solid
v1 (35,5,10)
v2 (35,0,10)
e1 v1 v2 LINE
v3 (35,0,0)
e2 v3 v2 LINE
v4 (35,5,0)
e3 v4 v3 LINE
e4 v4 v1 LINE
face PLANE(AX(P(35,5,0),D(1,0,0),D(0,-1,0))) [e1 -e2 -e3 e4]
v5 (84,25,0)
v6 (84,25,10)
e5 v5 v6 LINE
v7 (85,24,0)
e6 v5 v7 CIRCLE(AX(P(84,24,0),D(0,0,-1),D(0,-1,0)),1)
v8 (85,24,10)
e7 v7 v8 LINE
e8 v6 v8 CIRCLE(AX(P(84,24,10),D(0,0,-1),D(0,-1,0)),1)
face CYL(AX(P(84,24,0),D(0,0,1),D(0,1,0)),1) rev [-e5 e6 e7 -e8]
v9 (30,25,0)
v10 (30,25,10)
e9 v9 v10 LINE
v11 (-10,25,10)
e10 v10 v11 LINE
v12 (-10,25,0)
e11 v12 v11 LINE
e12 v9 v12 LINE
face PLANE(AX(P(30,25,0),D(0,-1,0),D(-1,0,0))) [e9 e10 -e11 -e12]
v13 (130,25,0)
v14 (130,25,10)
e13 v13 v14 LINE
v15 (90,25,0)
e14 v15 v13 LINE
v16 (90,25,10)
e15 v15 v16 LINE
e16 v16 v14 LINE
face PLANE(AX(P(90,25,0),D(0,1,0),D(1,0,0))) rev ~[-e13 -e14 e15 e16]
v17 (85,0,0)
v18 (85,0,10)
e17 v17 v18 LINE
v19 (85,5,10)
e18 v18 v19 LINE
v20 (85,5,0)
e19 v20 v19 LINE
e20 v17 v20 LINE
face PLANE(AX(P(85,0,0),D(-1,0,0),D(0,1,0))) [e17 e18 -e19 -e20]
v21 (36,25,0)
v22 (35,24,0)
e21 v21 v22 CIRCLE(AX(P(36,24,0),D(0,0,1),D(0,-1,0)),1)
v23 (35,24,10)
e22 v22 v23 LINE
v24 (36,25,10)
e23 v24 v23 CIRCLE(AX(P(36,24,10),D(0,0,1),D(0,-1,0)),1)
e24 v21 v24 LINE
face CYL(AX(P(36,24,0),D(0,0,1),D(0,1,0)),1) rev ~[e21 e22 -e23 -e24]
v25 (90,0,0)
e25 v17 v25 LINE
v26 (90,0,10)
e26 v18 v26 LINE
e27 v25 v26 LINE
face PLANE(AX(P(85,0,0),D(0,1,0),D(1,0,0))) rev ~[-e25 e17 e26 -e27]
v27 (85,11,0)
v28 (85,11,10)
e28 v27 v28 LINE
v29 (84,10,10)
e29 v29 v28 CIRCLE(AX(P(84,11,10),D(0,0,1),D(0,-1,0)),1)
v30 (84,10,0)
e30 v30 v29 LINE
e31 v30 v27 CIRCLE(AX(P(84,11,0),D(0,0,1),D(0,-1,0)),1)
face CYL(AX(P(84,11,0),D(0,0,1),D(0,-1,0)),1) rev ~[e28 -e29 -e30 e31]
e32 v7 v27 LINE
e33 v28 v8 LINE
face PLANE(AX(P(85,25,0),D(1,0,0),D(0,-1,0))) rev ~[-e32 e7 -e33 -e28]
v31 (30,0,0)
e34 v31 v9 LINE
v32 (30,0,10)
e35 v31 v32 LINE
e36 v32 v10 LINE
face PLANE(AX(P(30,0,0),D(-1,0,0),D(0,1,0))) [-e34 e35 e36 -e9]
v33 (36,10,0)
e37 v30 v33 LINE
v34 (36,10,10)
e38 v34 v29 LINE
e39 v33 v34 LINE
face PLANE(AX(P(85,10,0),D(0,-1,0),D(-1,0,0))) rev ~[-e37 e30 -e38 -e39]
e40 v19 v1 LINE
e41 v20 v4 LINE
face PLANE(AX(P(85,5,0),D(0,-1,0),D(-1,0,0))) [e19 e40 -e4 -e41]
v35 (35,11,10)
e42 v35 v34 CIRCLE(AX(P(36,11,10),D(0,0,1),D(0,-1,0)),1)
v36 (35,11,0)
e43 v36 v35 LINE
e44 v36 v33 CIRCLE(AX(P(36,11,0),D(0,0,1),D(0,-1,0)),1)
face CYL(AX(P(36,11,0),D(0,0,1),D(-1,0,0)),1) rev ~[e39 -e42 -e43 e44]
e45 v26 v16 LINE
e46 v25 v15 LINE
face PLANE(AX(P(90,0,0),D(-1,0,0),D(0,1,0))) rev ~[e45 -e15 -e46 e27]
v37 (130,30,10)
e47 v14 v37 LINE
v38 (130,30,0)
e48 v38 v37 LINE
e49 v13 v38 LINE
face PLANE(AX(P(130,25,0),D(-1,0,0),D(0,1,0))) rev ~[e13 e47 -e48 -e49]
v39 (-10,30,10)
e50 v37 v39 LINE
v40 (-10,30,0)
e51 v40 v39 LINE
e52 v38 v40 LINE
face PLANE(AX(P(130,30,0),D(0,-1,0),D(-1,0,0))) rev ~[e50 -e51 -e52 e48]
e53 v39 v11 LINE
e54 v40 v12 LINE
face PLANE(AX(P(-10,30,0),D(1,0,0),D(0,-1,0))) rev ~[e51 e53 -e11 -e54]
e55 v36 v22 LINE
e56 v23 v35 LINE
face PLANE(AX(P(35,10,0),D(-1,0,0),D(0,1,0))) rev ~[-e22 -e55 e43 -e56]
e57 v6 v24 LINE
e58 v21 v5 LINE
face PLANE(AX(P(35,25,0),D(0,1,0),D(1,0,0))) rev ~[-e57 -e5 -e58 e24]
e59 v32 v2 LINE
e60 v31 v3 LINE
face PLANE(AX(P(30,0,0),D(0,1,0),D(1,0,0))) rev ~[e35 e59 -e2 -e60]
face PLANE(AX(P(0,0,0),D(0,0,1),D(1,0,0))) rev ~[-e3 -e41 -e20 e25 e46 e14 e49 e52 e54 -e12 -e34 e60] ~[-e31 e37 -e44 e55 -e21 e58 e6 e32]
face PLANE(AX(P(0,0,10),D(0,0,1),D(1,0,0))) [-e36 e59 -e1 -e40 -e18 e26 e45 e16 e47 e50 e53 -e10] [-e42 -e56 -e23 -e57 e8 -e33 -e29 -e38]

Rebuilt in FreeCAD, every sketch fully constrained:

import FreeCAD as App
import Part
import Sketcher
Q = App.Units.Quantity


def edges_at(feature, points):
    """Names of the edges that pass closest to the given points."""
    edges = feature.Shape.Edges
    near = lambda p: min(range(len(edges)), key=lambda i: edges[i].distToShape(Part.Vertex(*p))[0])
    return sorted({f"Edge{near(p) + 1}" for p in points})


def add_polygon(sketch, points):
    """Adds a closed chain of lines whose ends are joined by coincident constraints."""
    first, n = sketch.GeometryCount, len(points)
    for a, b in zip(points, points[1:] + points[:1]):
        sketch.addGeometry(Part.LineSegment(App.Vector(*a, 0), App.Vector(*b, 0)), False)
    for i in range(n):
        sketch.addConstraint(Sketcher.Constraint("Coincident", first + i, 2, first + (i + 1) % n, 1))

doc = App.newDocument("Part")
body = doc.addObject("PartDesign::Body", "Body")

sketch1 = body.newObject("Sketcher::SketchObject", "Sketch")
sketch1.AttachmentSupport = (doc.getObject("XY_Plane"), [""])
sketch1.MapMode = "FlatFace"
add_polygon(sketch1, [(90, 25), (130, 25), (130, 30), (-10, 30), (-10, 25), (30, 25), (30, 0), (35, 0), (35, 5), (85, 5), (85, 0), (90, 0)])
sketch1.addConstraint([
    Sketcher.Constraint("Horizontal", 0),
    Sketcher.Constraint("Vertical", 1),
    Sketcher.Constraint("Horizontal", 2),
    Sketcher.Constraint("Vertical", 3),
    Sketcher.Constraint("Horizontal", 4),
    Sketcher.Constraint("Vertical", 5),
    Sketcher.Constraint("Horizontal", 6),
    Sketcher.Constraint("Vertical", 7),
    Sketcher.Constraint("Horizontal", 8),
    Sketcher.Constraint("Vertical", 9),
    Sketcher.Constraint("Horizontal", 10),
    Sketcher.Constraint("Vertical", 11),
    Sketcher.Constraint("PointOnObject", 5, 2, -1),
    Sketcher.Constraint("PointOnObject", 9, 2, -1),
    Sketcher.Constraint("Horizontal", 0, 2, 3, 2),
    Sketcher.Constraint("Equal", 0, 4),
    Sketcher.Constraint("Equal", 6, 10),
    Sketcher.Constraint("Equal", 10, 1),
    Sketcher.Constraint("Equal", 3, 7),
    Sketcher.Constraint("DistanceX", 2, 2, 2, 1, Q("140 mm")),
    Sketcher.Constraint("DistanceX", 6, 1, 6, 2, Q("5 mm")),
    Sketcher.Constraint("DistanceX", 8, 1, 8, 2, Q("50 mm")),
    Sketcher.Constraint("DistanceY", -1, 1, 1, 2, Q("30 mm")),
    Sketcher.Constraint("DistanceX", -1, 1, 4, 2, Q("30 mm")),
])
pad1 = body.newObject("PartDesign::Pad", "Pad")
pad1.Profile = sketch1
pad1.Length = 10

sketch2 = body.newObject("Sketcher::SketchObject", "Sketch001")
sketch2.AttachmentSupport = (doc.getObject("XY_Plane"), [""])
sketch2.MapMode = "FlatFace"
add_polygon(sketch2, [(85, 25), (85, 10), (35, 10), (35, 25)])
sketch2.addConstraint([
    Sketcher.Constraint("Vertical", 0),
    Sketcher.Constraint("Horizontal", 1),
    Sketcher.Constraint("Vertical", 2),
    Sketcher.Constraint("Horizontal", 3),
    Sketcher.Constraint("DistanceX", 1, 2, 1, 1, Q("50 mm")),
    Sketcher.Constraint("DistanceY", 0, 2, 0, 1, Q("15 mm")),
    Sketcher.Constraint("DistanceX", -1, 1, 0, 2, Q("85 mm")),
    Sketcher.Constraint("DistanceY", -1, 1, 0, 2, Q("10 mm")),
])
pocket1 = body.newObject("PartDesign::Pocket", "Pocket")
pocket1.Profile = sketch2
pocket1.Type = "ThroughAll"
pocket1.Reversed = True
doc.recompute()

fillet = body.newObject("PartDesign::Fillet", "Fillet")
fillet.Base = (pocket1, edges_at(pocket1, [
    (85, 25, 5),
    (35, 25, 5),
    (35, 10, 5),
    (85, 10, 5),
]))
fillet.Radius = 1

doc.recompute()
